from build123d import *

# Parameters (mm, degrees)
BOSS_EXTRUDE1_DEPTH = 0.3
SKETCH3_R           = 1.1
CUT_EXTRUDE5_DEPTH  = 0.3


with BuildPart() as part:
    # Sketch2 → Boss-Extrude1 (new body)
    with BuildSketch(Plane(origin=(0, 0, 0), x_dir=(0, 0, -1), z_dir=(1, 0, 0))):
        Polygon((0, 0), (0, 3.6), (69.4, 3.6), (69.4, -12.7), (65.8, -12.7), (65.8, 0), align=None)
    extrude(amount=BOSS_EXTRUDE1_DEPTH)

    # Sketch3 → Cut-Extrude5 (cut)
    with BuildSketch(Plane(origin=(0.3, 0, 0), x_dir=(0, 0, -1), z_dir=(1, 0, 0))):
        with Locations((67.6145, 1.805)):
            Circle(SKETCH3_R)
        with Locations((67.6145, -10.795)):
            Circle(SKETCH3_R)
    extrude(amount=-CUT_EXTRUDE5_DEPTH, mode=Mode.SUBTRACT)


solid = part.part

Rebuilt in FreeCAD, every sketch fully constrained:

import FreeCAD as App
import Part
import Sketcher

V = App.Vector
Q = App.Units.Quantity


def add_polygon(sketch, points):
    """Adds a closed chain of lines whose ends are joined by coincident constraints."""
    first, n = sketch.GeometryCount, len(points)
    for a, b in zip(points, points[1:] + points[:1]):
        sketch.addGeometry(Part.LineSegment(App.Vector(*a, 0), App.Vector(*b, 0)), False)
    for i in range(n):
        sketch.addConstraint(Sketcher.Constraint("Coincident", first + i, 2, first + (i + 1) % n, 1))

doc = App.newDocument("Part")
params = doc.addObject("Spreadsheet::Sheet", "Params")
for row, (alias, value) in enumerate([
    ("sketch1_width", "3.6 mm"),
    ("sketch1_width2", "12.7 mm"),
    ("sketch1_height", "65.8 mm"),
    ("pad1_length", "0.3 mm"),
    ("sketch2_diameter", "2.2 mm"),
    ("pocket1_length", "0.3 mm"),
], start=1):
    params.set(f"A{row}", alias)
    params.set(f"B{row}", "=" + value)
    params.setAlias(f"B{row}", alias)

body = doc.addObject("PartDesign::Body", "Body")

# Sketch on YZ plane
sketch1 = body.newObject("Sketcher::SketchObject", "Sketch")
sketch1.AttachmentSupport = (doc.getObject("YZ_Plane"), [""])
sketch1.MapMode = "FlatFace"
add_polygon(sketch1, [(3.6, 0), (0, 0), (0, -65.8), (-12.7, -65.8), (-12.7, -69.4), (3.6, -69.4)])  # lines 0-5
sketch1.addConstraint([
    Sketcher.Constraint("Horizontal", 0),
    Sketcher.Constraint("Vertical", 1),
    Sketcher.Constraint("Horizontal", 2),
    Sketcher.Constraint("Vertical", 3),
    Sketcher.Constraint("Horizontal", 4),
    Sketcher.Constraint("Vertical", 5),
    Sketcher.Constraint("Coincident", 0, 2, -1, 1),
    Sketcher.Constraint("Equal", 0, 3),
    Sketcher.Constraint("DistanceX", 0, 2, 0, 1, Q("3.6 mm")),
    Sketcher.Constraint("DistanceX", 2, 2, 2, 1, Q("12.7 mm")),
    Sketcher.Constraint("DistanceY", 1, 2, 1, 1, Q("65.8 mm")),
])
sketch1.setExpression("Constraints[14]", "Params.sketch1_width")
sketch1.setExpression("Constraints[15]", "Params.sketch1_width2")
sketch1.setExpression("Constraints[16]", "Params.sketch1_height")
pad1 = body.newObject("PartDesign::Pad", "Pad")
pad1.Profile = sketch1
pad1.setExpression("Length", "Params.pad1_length")

# Sketch on YZ plane
sketch2 = body.newObject("Sketcher::SketchObject", "Sketch001")
sketch2.AttachmentSupport = (doc.getObject("YZ_Plane"), [""])
sketch2.MapMode = "FlatFace"
sketch2.AttachmentOffset = App.Placement(V(0, 0, 0.3), App.Rotation())
sketch2.addGeometry([
    Part.Circle(V(1.8, -67.6, 0), V(0, 0, 1), 1.1),
    Part.Circle(V(-10.8, -67.6, 0), V(0, 0, 1), 1.1),
], False)
sketch2.addConstraint([
    Sketcher.Constraint("Equal", 0, 1),
    Sketcher.Constraint("Horizontal", 0, 3, 1, 3),
    Sketcher.Constraint("Diameter", 0, Q("2.2 mm")),
    Sketcher.Constraint("DistanceX", 1, 3, 0, 3, Q("12.6 mm")),
    Sketcher.Constraint("DistanceX", -1, 1, 0, 3, Q("1.805 mm")),
    Sketcher.Constraint("DistanceY", 0, 3, -1, 1, Q("67.6145 mm")),
])
sketch2.setExpression("Constraints[2]", "Params.sketch2_diameter")
pocket1 = body.newObject("PartDesign::Pocket", "Pocket")
pocket1.Profile = sketch2
pocket1.setExpression("Length", "Params.pocket1_length")

doc.recompute()
